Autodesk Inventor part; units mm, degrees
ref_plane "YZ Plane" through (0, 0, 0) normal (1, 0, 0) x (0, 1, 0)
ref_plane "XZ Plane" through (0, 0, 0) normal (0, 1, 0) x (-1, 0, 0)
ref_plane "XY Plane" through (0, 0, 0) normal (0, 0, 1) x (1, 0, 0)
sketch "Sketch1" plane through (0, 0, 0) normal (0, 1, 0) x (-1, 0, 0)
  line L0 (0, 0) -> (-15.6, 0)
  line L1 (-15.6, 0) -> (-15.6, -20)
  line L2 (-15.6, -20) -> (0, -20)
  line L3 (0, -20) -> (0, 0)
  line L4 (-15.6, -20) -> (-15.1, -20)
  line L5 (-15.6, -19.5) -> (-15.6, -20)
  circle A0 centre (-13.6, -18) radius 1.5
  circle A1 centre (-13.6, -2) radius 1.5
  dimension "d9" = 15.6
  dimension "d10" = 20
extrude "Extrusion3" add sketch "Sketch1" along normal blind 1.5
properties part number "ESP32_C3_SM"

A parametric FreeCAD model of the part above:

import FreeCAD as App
import Part
import Sketcher
from FreeCAD import Vector


def add_polygon(sketch, points):
    """Adds a closed chain of lines whose ends are joined by coincident constraints."""
    first, n = sketch.GeometryCount, len(points)
    for a, b in zip(points, points[1:] + points[:1]):
        sketch.addGeometry(Part.LineSegment(App.Vector(*a, 0), App.Vector(*b, 0)), False)
    for i in range(n):
        sketch.addConstraint(Sketcher.Constraint("Coincident", first + i, 2, first + (i + 1) % n, 1))

doc = App.newDocument("Part")
body = doc.addObject("PartDesign::Body", "Body")

# Sketch on XZ plane
sketch1 = doc.addObject("Sketcher::SketchObject", "Sketch")
body.addObject(sketch1)
sketch1.AttachmentSupport = (doc.XZ_Plane, [""])
sketch1.MapMode = "FlatFace"
add_polygon(sketch1, [(0, -20), (0, 0), (15.6, 0), (15.6, -20)])  # lines 0-3
sketch1.addGeometry(Part.Circle(Vector(13.6, -18, 0), Vector(0, 0, 1), 1.5), False)  # 4
sketch1.addGeometry(Part.Circle(Vector(13.6, -2, 0), Vector(0, 0, 1), 1.5), False)  # 5
sketch1.addConstraint([
    Sketcher.Constraint("Vertical", 0),
    Sketcher.Constraint("Horizontal", 1),
    Sketcher.Constraint("Vertical", 2),
    Sketcher.Constraint("Horizontal", 3),
    Sketcher.Constraint("Coincident", 0, 2, -1, 1),
    Sketcher.Constraint("Equal", 4, 5),
    Sketcher.Constraint("Vertical", 4, 3, 5, 3),
    Sketcher.Constraint("DistanceY", 0, 1, 0, 2, 20.0),
    Sketcher.Constraint("Diameter", 4, 3.0),
    Sketcher.Constraint("DistanceX", 1, 1, 1, 2, 15.6),
    Sketcher.Constraint("DistanceY", 4, 3, -1, 1, 18.0),
    Sketcher.Constraint("DistanceY", 5, 3, -1, 1, 2.0),
    Sketcher.Constraint("DistanceX", 5, 3, 1, 2, 2.0),
])
pad1 = doc.addObject("PartDesign::Pad", "Pad")
body.addObject(pad1)
pad1.Profile = sketch1
pad1.Length = 1.5
pad1.Reversed = True

doc.recompute()
